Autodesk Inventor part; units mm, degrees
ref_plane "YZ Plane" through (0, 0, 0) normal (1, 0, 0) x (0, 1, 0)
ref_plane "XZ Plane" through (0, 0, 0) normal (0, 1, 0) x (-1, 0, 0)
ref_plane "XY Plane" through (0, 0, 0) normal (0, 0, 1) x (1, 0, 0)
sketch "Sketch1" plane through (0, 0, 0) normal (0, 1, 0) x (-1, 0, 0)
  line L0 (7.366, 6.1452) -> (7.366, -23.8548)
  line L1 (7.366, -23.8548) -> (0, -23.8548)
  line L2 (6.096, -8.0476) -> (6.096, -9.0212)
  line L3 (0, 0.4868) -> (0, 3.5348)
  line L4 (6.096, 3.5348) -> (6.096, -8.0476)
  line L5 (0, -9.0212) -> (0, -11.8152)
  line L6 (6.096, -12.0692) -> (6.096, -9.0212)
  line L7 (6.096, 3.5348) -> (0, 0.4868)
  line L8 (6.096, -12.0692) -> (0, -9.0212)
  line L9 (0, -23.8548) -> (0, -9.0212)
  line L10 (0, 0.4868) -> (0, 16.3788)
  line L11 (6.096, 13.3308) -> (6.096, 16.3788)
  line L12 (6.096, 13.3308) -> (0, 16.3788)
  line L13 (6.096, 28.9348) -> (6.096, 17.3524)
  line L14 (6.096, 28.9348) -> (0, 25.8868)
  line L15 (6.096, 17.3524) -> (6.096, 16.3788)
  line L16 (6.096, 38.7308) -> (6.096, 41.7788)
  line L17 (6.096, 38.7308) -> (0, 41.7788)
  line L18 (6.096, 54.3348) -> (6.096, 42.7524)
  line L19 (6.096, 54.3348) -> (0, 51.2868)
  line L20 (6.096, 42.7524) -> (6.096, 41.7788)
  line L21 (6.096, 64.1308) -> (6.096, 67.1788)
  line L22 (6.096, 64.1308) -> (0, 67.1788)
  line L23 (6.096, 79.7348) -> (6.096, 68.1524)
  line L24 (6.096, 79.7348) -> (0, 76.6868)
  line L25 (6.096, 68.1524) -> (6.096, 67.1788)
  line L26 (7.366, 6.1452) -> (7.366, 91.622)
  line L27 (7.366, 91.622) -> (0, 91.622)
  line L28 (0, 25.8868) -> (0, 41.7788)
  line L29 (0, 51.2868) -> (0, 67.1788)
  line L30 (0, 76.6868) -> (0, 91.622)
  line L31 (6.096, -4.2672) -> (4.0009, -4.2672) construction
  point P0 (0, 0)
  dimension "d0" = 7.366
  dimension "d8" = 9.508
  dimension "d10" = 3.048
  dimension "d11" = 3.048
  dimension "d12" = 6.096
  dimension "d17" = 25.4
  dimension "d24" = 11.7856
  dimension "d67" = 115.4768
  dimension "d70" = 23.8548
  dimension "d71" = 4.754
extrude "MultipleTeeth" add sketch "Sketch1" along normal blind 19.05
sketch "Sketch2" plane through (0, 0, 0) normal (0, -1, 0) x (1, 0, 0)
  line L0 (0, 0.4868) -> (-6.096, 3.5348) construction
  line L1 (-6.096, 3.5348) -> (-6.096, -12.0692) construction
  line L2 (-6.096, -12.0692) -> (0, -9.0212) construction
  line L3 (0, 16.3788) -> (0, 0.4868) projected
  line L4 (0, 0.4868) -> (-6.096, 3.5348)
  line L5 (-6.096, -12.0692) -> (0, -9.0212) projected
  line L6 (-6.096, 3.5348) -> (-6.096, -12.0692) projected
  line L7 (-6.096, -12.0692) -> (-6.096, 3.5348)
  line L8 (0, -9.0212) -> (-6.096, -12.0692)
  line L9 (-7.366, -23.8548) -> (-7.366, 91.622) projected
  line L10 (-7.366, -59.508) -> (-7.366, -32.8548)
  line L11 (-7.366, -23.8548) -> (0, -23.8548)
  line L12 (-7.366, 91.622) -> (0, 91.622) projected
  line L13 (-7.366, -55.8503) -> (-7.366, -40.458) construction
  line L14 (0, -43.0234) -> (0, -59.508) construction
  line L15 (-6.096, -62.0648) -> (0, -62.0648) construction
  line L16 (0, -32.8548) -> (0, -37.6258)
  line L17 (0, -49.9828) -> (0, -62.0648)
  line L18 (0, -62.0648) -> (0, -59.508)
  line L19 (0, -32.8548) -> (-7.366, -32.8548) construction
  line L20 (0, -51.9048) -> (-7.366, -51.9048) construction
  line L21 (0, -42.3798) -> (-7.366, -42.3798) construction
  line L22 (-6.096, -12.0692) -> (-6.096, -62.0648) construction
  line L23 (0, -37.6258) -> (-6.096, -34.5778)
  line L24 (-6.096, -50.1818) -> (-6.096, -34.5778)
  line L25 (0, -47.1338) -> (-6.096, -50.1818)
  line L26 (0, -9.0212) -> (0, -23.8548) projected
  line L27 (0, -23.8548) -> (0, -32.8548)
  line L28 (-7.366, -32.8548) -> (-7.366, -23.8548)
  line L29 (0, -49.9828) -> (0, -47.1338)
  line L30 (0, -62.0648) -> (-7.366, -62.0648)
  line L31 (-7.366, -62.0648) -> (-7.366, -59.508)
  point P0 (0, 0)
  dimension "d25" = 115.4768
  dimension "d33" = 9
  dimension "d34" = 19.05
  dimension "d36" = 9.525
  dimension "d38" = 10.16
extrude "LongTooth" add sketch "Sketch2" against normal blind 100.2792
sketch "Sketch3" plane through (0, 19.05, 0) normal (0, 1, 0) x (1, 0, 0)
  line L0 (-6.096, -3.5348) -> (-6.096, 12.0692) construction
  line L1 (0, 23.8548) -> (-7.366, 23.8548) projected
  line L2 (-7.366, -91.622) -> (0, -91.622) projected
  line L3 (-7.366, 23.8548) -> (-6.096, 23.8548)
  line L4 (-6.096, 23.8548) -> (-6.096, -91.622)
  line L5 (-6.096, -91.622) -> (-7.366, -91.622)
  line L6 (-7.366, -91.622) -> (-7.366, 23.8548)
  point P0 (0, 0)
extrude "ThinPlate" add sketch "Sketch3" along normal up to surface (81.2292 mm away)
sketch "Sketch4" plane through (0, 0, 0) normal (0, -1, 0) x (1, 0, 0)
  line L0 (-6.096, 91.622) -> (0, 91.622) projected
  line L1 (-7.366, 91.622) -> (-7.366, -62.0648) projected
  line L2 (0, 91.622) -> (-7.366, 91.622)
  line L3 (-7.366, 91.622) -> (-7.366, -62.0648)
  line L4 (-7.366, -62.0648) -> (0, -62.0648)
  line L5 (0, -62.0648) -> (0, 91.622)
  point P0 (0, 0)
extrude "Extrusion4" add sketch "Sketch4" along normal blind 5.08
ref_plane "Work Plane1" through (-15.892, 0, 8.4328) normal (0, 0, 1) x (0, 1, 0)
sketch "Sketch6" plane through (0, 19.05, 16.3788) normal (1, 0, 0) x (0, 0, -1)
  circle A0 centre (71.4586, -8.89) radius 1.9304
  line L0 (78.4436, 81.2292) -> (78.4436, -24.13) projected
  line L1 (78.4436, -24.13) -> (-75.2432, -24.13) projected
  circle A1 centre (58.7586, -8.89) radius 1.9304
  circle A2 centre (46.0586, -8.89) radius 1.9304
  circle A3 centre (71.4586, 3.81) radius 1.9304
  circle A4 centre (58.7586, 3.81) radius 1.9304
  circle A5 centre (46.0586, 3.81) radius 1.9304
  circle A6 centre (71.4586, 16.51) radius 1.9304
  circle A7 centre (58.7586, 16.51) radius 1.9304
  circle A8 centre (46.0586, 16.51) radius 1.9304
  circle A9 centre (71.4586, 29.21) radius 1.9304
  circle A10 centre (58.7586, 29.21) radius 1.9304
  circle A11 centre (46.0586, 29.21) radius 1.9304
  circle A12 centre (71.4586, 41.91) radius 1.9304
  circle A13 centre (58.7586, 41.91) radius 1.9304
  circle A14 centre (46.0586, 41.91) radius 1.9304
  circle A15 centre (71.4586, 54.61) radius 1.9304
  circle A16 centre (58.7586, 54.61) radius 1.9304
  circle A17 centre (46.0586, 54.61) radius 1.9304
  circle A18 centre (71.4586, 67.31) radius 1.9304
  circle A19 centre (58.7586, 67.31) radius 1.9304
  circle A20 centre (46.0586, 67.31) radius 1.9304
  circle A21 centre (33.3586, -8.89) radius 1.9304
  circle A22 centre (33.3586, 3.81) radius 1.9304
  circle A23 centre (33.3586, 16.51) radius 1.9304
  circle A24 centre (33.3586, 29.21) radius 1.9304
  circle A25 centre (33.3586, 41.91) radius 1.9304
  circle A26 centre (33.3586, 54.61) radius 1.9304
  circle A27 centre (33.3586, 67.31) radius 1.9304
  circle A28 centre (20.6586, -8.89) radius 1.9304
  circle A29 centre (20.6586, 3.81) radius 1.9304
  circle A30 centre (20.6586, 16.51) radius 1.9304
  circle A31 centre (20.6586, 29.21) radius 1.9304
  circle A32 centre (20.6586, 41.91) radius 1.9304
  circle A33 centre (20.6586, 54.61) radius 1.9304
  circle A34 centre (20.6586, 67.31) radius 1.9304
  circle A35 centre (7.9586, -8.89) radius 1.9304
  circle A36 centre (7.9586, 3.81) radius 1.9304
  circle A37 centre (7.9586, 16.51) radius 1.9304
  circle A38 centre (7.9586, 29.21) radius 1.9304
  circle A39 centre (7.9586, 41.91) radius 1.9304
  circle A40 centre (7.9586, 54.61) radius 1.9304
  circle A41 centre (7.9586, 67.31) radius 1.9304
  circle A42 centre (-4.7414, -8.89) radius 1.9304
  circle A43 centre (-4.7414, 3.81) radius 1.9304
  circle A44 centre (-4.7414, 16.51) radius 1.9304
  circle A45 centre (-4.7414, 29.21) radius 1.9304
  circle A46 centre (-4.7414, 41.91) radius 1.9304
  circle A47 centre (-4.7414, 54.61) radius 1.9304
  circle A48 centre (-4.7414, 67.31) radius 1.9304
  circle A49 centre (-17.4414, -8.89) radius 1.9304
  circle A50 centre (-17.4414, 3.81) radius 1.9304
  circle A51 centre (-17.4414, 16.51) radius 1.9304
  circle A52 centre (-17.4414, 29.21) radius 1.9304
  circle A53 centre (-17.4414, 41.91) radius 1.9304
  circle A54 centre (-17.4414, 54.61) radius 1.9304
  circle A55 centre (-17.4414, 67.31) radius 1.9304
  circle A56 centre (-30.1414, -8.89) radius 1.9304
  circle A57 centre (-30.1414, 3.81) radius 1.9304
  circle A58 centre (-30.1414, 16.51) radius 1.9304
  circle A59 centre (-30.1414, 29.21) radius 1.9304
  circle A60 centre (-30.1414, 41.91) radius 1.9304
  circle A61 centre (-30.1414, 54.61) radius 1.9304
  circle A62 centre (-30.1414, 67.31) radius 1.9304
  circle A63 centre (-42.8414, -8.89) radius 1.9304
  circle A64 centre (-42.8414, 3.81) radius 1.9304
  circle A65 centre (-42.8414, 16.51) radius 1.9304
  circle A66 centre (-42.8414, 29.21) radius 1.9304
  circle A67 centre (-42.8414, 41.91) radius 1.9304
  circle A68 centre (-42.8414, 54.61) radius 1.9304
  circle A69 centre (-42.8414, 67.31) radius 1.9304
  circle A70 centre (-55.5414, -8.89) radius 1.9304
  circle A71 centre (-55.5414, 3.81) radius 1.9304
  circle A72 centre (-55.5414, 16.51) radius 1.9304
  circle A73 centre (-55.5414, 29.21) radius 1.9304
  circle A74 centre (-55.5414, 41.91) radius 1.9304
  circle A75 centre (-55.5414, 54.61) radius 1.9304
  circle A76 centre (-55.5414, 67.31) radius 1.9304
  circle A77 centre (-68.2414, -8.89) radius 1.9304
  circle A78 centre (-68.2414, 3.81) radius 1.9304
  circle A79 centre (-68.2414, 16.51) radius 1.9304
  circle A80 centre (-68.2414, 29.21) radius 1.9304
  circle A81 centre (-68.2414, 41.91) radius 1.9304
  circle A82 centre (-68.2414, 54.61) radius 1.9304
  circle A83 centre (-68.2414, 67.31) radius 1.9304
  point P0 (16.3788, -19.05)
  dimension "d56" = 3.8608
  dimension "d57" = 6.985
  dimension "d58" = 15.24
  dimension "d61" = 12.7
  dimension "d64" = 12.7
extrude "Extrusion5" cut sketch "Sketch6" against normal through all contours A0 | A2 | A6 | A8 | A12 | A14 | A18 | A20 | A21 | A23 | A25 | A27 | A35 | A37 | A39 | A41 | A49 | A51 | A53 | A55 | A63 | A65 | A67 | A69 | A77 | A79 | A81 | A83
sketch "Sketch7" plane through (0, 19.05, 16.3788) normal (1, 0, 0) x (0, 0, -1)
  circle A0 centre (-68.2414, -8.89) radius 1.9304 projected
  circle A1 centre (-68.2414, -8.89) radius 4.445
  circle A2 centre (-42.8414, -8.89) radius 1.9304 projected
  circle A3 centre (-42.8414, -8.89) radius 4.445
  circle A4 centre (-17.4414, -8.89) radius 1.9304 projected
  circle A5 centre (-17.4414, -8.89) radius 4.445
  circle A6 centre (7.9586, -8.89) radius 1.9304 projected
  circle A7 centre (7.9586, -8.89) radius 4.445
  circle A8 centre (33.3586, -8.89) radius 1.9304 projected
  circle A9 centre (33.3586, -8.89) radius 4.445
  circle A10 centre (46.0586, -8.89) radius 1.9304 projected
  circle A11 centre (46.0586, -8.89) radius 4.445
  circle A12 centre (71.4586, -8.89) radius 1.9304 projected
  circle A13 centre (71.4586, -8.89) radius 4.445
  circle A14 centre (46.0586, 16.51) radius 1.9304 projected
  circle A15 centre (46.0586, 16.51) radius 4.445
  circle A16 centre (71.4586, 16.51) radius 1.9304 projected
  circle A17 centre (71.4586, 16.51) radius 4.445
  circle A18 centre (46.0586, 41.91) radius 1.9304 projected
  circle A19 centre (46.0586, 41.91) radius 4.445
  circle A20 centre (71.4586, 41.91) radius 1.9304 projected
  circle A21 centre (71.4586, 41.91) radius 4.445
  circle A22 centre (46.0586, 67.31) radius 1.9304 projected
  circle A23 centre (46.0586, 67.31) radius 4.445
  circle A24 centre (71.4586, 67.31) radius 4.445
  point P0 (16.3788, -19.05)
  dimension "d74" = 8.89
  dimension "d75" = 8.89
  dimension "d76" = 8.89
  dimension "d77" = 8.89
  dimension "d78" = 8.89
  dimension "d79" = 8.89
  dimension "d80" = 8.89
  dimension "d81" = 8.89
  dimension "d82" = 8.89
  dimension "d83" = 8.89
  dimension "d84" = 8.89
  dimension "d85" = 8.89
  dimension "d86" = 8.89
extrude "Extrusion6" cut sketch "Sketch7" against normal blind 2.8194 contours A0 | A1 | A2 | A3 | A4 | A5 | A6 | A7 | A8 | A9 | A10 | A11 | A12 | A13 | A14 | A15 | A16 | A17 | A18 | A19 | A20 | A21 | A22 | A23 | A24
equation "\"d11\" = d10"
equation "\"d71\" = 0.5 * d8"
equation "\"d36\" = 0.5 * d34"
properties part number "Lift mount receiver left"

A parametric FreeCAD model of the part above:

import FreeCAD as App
import Part
import Sketcher
Q = App.Units.Quantity


def add_polygon(sketch, points):
    """Adds a closed chain of lines whose ends are joined by coincident constraints."""
    first, n = sketch.GeometryCount, len(points)
    for a, b in zip(points, points[1:] + points[:1]):
        sketch.addGeometry(Part.LineSegment(App.Vector(*a, 0), App.Vector(*b, 0)), False)
    for i in range(n):
        sketch.addConstraint(Sketcher.Constraint("Coincident", first + i, 2, first + (i + 1) % n, 1))

doc = App.newDocument("Part")
body = doc.addObject("PartDesign::Body", "Body")

# Sketch on XZ plane
sketch1 = body.newObject("Sketcher::SketchObject", "Sketch")
sketch1.AttachmentSupport = (doc.getObject("XZ_Plane"), [""])
sketch1.MapMode = "FlatFace"
add_polygon(sketch1, [(-7, -24), (-7, 92), (0, 92), (0, 77), (-6, 80), (-6, 64), (0, 67), (0, 51), (-6, 54), (-6, 39), (0, 42), (0, 26), (-6, 29), (-6, 13), (0, 16), (0, 0), (-6, 4), (-6, -12), (0, -9), (0, -24)])  # lines 0-19
sketch1.addConstraint([
    Sketcher.Constraint("Vertical", 0),
    Sketcher.Constraint("Horizontal", 1),
    Sketcher.Constraint("Vertical", 2),
    Sketcher.Constraint("Vertical", 4),
    Sketcher.Constraint("Vertical", 6),
    Sketcher.Constraint("Vertical", 8),
    Sketcher.Constraint("Vertical", 10),
    Sketcher.Constraint("Vertical", 12),
    Sketcher.Constraint("Vertical", 14),
    Sketcher.Constraint("Vertical", 16),
    Sketcher.Constraint("Vertical", 18),
    Sketcher.Constraint("Horizontal", 19),
    Sketcher.Constraint("PointOnObject", 1, 2, -2),
    Sketcher.Constraint("PointOnObject", 5, 2, -2),
    Sketcher.Constraint("PointOnObject", 9, 2, -2),
    Sketcher.Constraint("PointOnObject", 13, 2, -2),
    Sketcher.Constraint("PointOnObject", 17, 2, -2),
    Sketcher.Constraint("Parallel", 3, 7),
    Sketcher.Constraint("Parallel", 5, 9),
    Sketcher.Constraint("Parallel", 7, 11),
    Sketcher.Constraint("Parallel", 9, 13),
    Sketcher.Constraint("Parallel", 11, 15),
    Sketcher.Constraint("Parallel", 13, 17),
    Sketcher.Constraint("Vertical", 4, 2, 7, 2),
    Sketcher.Constraint("Vertical", 8, 2, 11, 2),
    Sketcher.Constraint("Vertical", 12, 2, 15, 2),
    Sketcher.Constraint("Equal", 4, 8),
    Sketcher.Constraint("Equal", 6, 10),
    Sketcher.Constraint("Equal", 8, 12),
    Sketcher.Constraint("Equal", 10, 14),
    Sketcher.Constraint("Equal", 12, 16),
    Sketcher.Constraint("Equal", 3, 5),
    Sketcher.Constraint("DistanceY", 6, 2, 2, 2, Q("1 in")),
    Sketcher.Constraint("DistanceX", 1, 1, 1, 2, Q("0.29 in")),
    Sketcher.Constraint("DistanceX", 3, 2, -1, 1, Q("0.24 in")),
    Sketcher.Constraint("DistanceY", 2, 2, 3, 2, Q("0.12 in")),
    Sketcher.Constraint("DistanceY", 18, 2, 16, 2, Q("0.464 in")),
    Sketcher.Constraint("DistanceY", 0, 1, 0, 2, Q("115.4768 mm")),
    Sketcher.Constraint("DistanceY", 2, 2, 2, 1, Q("0.588 in")),
    Sketcher.Constraint("DistanceY", 18, 2, -1, 1, Q("23.8548 mm")),
])
pad1 = body.newObject("PartDesign::Pad", "Pad")
pad1.Profile = sketch1
pad1.Length = Q("0.75 in")
pad1.Reversed = True

# Sketch on XZ plane
sketch2 = body.newObject("Sketcher::SketchObject", "Sketch001")
sketch2.AttachmentSupport = (doc.getObject("XZ_Plane"), [""])
sketch2.MapMode = "FlatFace"
add_polygon(sketch2, [(-7, -24), (-7, -62), (0, -62), (0, -47), (-6, -50), (-6, -35), (0, -38), (0, -24)])  # lines 0-7
sketch2.addConstraint([
    Sketcher.Constraint("Vertical", 0),
    Sketcher.Constraint("Horizontal", 1),
    Sketcher.Constraint("Vertical", 2),
    Sketcher.Constraint("Vertical", 4),
    Sketcher.Constraint("Vertical", 6),
    Sketcher.Constraint("Horizontal", 7),
    Sketcher.Constraint("PointOnObject", 1, 2, -2),
    Sketcher.Constraint("PointOnObject", 5, 2, -2),
    Sketcher.Constraint("Equal", 3, 5),
    Sketcher.Constraint("DistanceX", 1, 1, 1, 2, Q("0.29 in")),
    Sketcher.Constraint("DistanceX", 3, 2, -1, 1, Q("0.24 in")),
    Sketcher.Constraint("DistanceY", 3, 2, 2, 2, Q("0.12 in")),
    Sketcher.Constraint("DistanceY", 0, 2, 0, 1, Q("38.21 mm")),
    Sketcher.Constraint("DistanceY", 2, 1, 2, 2, Q("14.931 mm")),
    Sketcher.Constraint("DistanceY", 4, 1, 4, 2, Q("15.604 mm")),
    Sketcher.Constraint("DistanceY", 0, 2, -1, 1, Q("2.4435 in")),
])
pad2 = body.newObject("PartDesign::Pad", "Pad001")
pad2.Profile = sketch2
pad2.Length = Q("3.948 in")
pad2.Reversed = True

# Sketch on XZ plane
sketch3 = body.newObject("Sketcher::SketchObject", "Sketch002")
sketch3.AttachmentSupport = (doc.getObject("XZ_Plane"), [""])
sketch3.MapMode = "FlatFace"
sketch3.AttachmentOffset = App.Placement(App.Vector(0, 0, -0.75 * 25.4), App.Rotation())
add_polygon(sketch3, [(-6.1, 91.6), (-6.1, -23.9), (-7.4, -23.9), (-7.4, 91.6)])  # lines 0-3
sketch3.addConstraint([
    Sketcher.Constraint("Vertical", 0),
    Sketcher.Constraint("Horizontal", 1),
    Sketcher.Constraint("Vertical", 2),
    Sketcher.Constraint("Horizontal", 3),
    Sketcher.Constraint("DistanceX", 1, 2, 1, 1, Q("0.05 in")),
    Sketcher.Constraint("DistanceX", 0, 2, -1, 1, Q("0.24 in")),
    Sketcher.Constraint("DistanceY", 0, 2, 0, 1, Q("115.4768 mm")),
    Sketcher.Constraint("DistanceY", 0, 2, -1, 1, Q("23.8548 mm")),
])
pad3 = body.newObject("PartDesign::Pad", "Pad002")
pad3.Profile = sketch3
pad3.Length = Q("3.198 in")
pad3.Reversed = True

# Sketch on XZ plane
sketch4 = body.newObject("Sketcher::SketchObject", "Sketch003")
sketch4.AttachmentSupport = (doc.getObject("XZ_Plane"), [""])
sketch4.MapMode = "FlatFace"
add_polygon(sketch4, [(0, 92), (-7, 92), (-7, -62), (0, -62)])  # lines 0-3
sketch4.addConstraint([
    Sketcher.Constraint("Horizontal", 0),
    Sketcher.Constraint("Vertical", 1),
    Sketcher.Constraint("Horizontal", 2),
    Sketcher.Constraint("Vertical", 3),
    Sketcher.Constraint("PointOnObject", 2, 2, -2),
    Sketcher.Constraint("DistanceX", 0, 2, 0, 1, Q("0.29 in")),
    Sketcher.Constraint("DistanceY", 1, 2, 1, 1, Q("153.6868 mm")),
    Sketcher.Constraint("DistanceY", 1, 2, -1, 1, Q("2.4435 in")),
])
pad4 = body.newObject("PartDesign::Pad", "Pad003")
pad4.Profile = sketch4
pad4.Length = Q("0.2 in")

# Sketch on YZ plane
sketch5 = body.newObject("Sketcher::SketchObject", "Sketch004")
sketch5.AttachmentSupport = (doc.getObject("YZ_Plane"), [""])
sketch5.MapMode = "FlatFace"
sketch5.addGeometry([
    Part.Circle(App.Vector(10.2, -55.1, 0), App.Vector(0, 0, 1), 1.9),  # 0
    Part.Circle(App.Vector(10.2, -29.7, 0), App.Vector(0, 0, 1), 1.9),  # 1
    Part.Circle(App.Vector(35.6, -55.1, 0), App.Vector(0, 0, 1), 1.9),  # 2
    Part.Circle(App.Vector(35.6, -29.7, 0), App.Vector(0, 0, 1), 1.9),  # 3
    Part.Circle(App.Vector(61, -55.1, 0), App.Vector(0, 0, 1), 1.9),  # 4
    Part.Circle(App.Vector(61, -29.7, 0), App.Vector(0, 0, 1), 1.9),  # 5
    Part.Circle(App.Vector(86.4, -55.1, 0), App.Vector(0, 0, 1), 1.9),  # 6
    Part.Circle(App.Vector(86.4, -29.7, 0), App.Vector(0, 0, 1), 1.9),  # 7
    Part.Circle(App.Vector(10.2, -17, 0), App.Vector(0, 0, 1), 1.9),  # 8
    Part.Circle(App.Vector(35.6, -17, 0), App.Vector(0, 0, 1), 1.9),  # 9
    Part.Circle(App.Vector(61, -17, 0), App.Vector(0, 0, 1), 1.9),  # 10
    Part.Circle(App.Vector(86.4, -17, 0), App.Vector(0, 0, 1), 1.9),  # 11
    Part.Circle(App.Vector(10.2, 8.4, 0), App.Vector(0, 0, 1), 1.9),  # 12
    Part.Circle(App.Vector(35.6, 8.4, 0), App.Vector(0, 0, 1), 1.9),  # 13
    Part.Circle(App.Vector(61, 8.4, 0), App.Vector(0, 0, 1), 1.9),  # 14
    Part.Circle(App.Vector(86.4, 8.4, 0), App.Vector(0, 0, 1), 1.9),  # 15
    Part.Circle(App.Vector(10.2, 33.8, 0), App.Vector(0, 0, 1), 1.9),  # 16
    Part.Circle(App.Vector(35.6, 33.8, 0), App.Vector(0, 0, 1), 1.9),  # 17
    Part.Circle(App.Vector(61, 33.8, 0), App.Vector(0, 0, 1), 1.9),  # 18
    Part.Circle(App.Vector(86.4, 33.8, 0), App.Vector(0, 0, 1), 1.9),  # 19
    Part.Circle(App.Vector(10.2, 59.2, 0), App.Vector(0, 0, 1), 1.9),  # 20
    Part.Circle(App.Vector(35.6, 59.2, 0), App.Vector(0, 0, 1), 1.9),  # 21
    Part.Circle(App.Vector(61, 59.2, 0), App.Vector(0, 0, 1), 1.9),  # 22
    Part.Circle(App.Vector(86.4, 59.2, 0), App.Vector(0, 0, 1), 1.9),  # 23
    Part.Circle(App.Vector(10.2, 84.6, 0), App.Vector(0, 0, 1), 1.9),  # 24
    Part.Circle(App.Vector(35.6, 84.6, 0), App.Vector(0, 0, 1), 1.9),  # 25
    Part.Circle(App.Vector(61, 84.6, 0), App.Vector(0, 0, 1), 1.9),  # 26
    Part.Circle(App.Vector(86.4, 84.6, 0), App.Vector(0, 0, 1), 1.9),  # 27
], False)
sketch5.addConstraint([
    Sketcher.Constraint("Equal", 0, 1),
    Sketcher.Constraint("Equal", 1, 2),
    Sketcher.Constraint("Equal", 2, 3),
    Sketcher.Constraint("Equal", 3, 4),
    Sketcher.Constraint("Equal", 4, 5),
    Sketcher.Constraint("Equal", 5, 6),
    Sketcher.Constraint("Equal", 6, 7),
    Sketcher.Constraint("Equal", 7, 8),
    Sketcher.Constraint("Equal", 8, 9),
    Sketcher.Constraint("Equal", 9, 10),
    Sketcher.Constraint("Equal", 10, 11),
    Sketcher.Constraint("Equal", 11, 12),
    Sketcher.Constraint("Equal", 12, 13),
    Sketcher.Constraint("Equal", 13, 14),
    Sketcher.Constraint("Equal", 14, 15),
    Sketcher.Constraint("Equal", 15, 16),
    Sketcher.Constraint("Equal", 16, 17),
    Sketcher.Constraint("Equal", 17, 18),
    Sketcher.Constraint("Equal", 18, 19),
    Sketcher.Constraint("Equal", 19, 20),
    Sketcher.Constraint("Equal", 20, 21),
    Sketcher.Constraint("Equal", 21, 22),
    Sketcher.Constraint("Equal", 22, 23),
    Sketcher.Constraint("Equal", 23, 24),
    Sketcher.Constraint("Equal", 24, 25),
    Sketcher.Constraint("Equal", 25, 26),
    Sketcher.Constraint("Equal", 26, 27),
    Sketcher.Constraint("Horizontal", 0, 3, 2, 3),
    Sketcher.Constraint("Horizontal", 1, 3, 3, 3),
    Sketcher.Constraint("Horizontal", 2, 3, 4, 3),
    Sketcher.Constraint("Horizontal", 3, 3, 5, 3),
    Sketcher.Constraint("Horizontal", 4, 3, 6, 3),
    Sketcher.Constraint("Horizontal", 5, 3, 7, 3),
    Sketcher.Constraint("Horizontal", 8, 3, 9, 3),
    Sketcher.Constraint("Horizontal", 9, 3, 10, 3),
    Sketcher.Constraint("Horizontal", 10, 3, 11, 3),
    Sketcher.Constraint("Horizontal", 12, 3, 13, 3),
    Sketcher.Constraint("Horizontal", 13, 3, 14, 3),
    Sketcher.Constraint("Horizontal", 14, 3, 15, 3),
    Sketcher.Constraint("Horizontal", 16, 3, 17, 3),
    Sketcher.Constraint("Horizontal", 17, 3, 18, 3),
    Sketcher.Constraint("Horizontal", 18, 3, 19, 3),
    Sketcher.Constraint("Horizontal", 20, 3, 21, 3),
    Sketcher.Constraint("Horizontal", 21, 3, 22, 3),
    Sketcher.Constraint("Horizontal", 22, 3, 23, 3),
    Sketcher.Constraint("Horizontal", 24, 3, 25, 3),
    Sketcher.Constraint("Horizontal", 25, 3, 26, 3),
    Sketcher.Constraint("Horizontal", 26, 3, 27, 3),
    Sketcher.Constraint("Vertical", 0, 3, 1, 3),
    Sketcher.Constraint("Vertical", 2, 3, 3, 3),
    Sketcher.Constraint("Vertical", 4, 3, 5, 3),
    Sketcher.Constraint("Vertical", 6, 3, 7, 3),
    Sketcher.Constraint("Vertical", 1, 3, 8, 3),
    Sketcher.Constraint("Vertical", 3, 3, 9, 3),
    Sketcher.Constraint("Vertical", 5, 3, 10, 3),
    Sketcher.Constraint("Vertical", 7, 3, 11, 3),
    Sketcher.Constraint("Vertical", 8, 3, 12, 3),
    Sketcher.Constraint("Vertical", 9, 3, 13, 3),
    Sketcher.Constraint("Vertical", 10, 3, 14, 3),
    Sketcher.Constraint("Vertical", 11, 3, 15, 3),
    Sketcher.Constraint("Vertical", 12, 3, 16, 3),
    Sketcher.Constraint("Vertical", 13, 3, 17, 3),
    Sketcher.Constraint("Vertical", 14, 3, 18, 3),
    Sketcher.Constraint("Vertical", 15, 3, 19, 3),
    Sketcher.Constraint("Vertical", 16, 3, 20, 3),
    Sketcher.Constraint("Vertical", 17, 3, 21, 3),
    Sketcher.Constraint("Vertical", 18, 3, 22, 3),
    Sketcher.Constraint("Vertical", 19, 3, 23, 3),
    Sketcher.Constraint("Vertical", 20, 3, 24, 3),
    Sketcher.Constraint("Vertical", 21, 3, 25, 3),
    Sketcher.Constraint("Vertical", 22, 3, 26, 3),
    Sketcher.Constraint("Vertical", 23, 3, 27, 3),
    Sketcher.Constraint("Diameter", 0, Q("0.152 in")),
    Sketcher.Constraint("DistanceY", 1, 3, 8, 3, Q("0.5 in")),
    Sketcher.Constraint("DistanceY", 0, 3, 1, 3, Q("1 in")),
    Sketcher.Constraint("DistanceX", 0, 3, 2, 3, Q("1 in")),
    Sketcher.Constraint("DistanceX", 2, 3, 4, 3, Q("1 in")),
    Sketcher.Constraint("DistanceX", 4, 3, 6, 3, Q("1 in")),
    Sketcher.Constraint("DistanceY", 8, 3, 12, 3, Q("1 in")),
    Sketcher.Constraint("DistanceY", 12, 3, 16, 3, Q("1 in")),
    Sketcher.Constraint("DistanceY", 16, 3, 20, 3, Q("1 in")),
    Sketcher.Constraint("DistanceY", 20, 3, 24, 3, Q("1 in")),
    Sketcher.Constraint("DistanceX", -1, 1, 0, 3, Q("0.4 in")),
    Sketcher.Constraint("DistanceY", 0, 3, -1, 1, Q("2.1685 in")),
])
pocket1 = body.newObject("PartDesign::Pocket", "Pocket")
pocket1.Profile = sketch5
pocket1.Type = "ThroughAll"

# Sketch on YZ plane
sketch6 = body.newObject("Sketcher::SketchObject", "Sketch005")
sketch6.AttachmentSupport = (doc.getObject("YZ_Plane"), [""])
sketch6.MapMode = "FlatFace"
sketch6.addGeometry([
    Part.Circle(App.Vector(10.2, 84.6, 0), App.Vector(0, 0, 1), 4.4),  # 0
    Part.Circle(App.Vector(10.2, 59.2, 0), App.Vector(0, 0, 1), 4.4),  # 1
    Part.Circle(App.Vector(10.2, 33.8, 0), App.Vector(0, 0, 1), 4.4),  # 2
    Part.Circle(App.Vector(10.2, 8.4, 0), App.Vector(0, 0, 1), 4.4),  # 3
    Part.Circle(App.Vector(10.2, -17, 0), App.Vector(0, 0, 1), 4.4),  # 4
    Part.Circle(App.Vector(10.2, -29.7, 0), App.Vector(0, 0, 1), 4.4),  # 5
    Part.Circle(App.Vector(10.2, -55.1, 0), App.Vector(0, 0, 1), 4.4),  # 6
    Part.Circle(App.Vector(35.6, -29.7, 0), App.Vector(0, 0, 1), 4.4),  # 7
    Part.Circle(App.Vector(35.6, -55.1, 0), App.Vector(0, 0, 1), 4.4),  # 8
    Part.Circle(App.Vector(61, -29.7, 0), App.Vector(0, 0, 1), 4.4),  # 9
    Part.Circle(App.Vector(61, -55.1, 0), App.Vector(0, 0, 1), 4.4),  # 10
    Part.Circle(App.Vector(86.4, -29.7, 0), App.Vector(0, 0, 1), 4.4),  # 11
    Part.Circle(App.Vector(86.4, -55.1, 0), App.Vector(0, 0, 1), 4.4),  # 12
], False)
sketch6.addConstraint([
    Sketcher.Constraint("Equal", 0, 1),
    Sketcher.Constraint("Equal", 1, 2),
    Sketcher.Constraint("Equal", 2, 3),
    Sketcher.Constraint("Equal", 3, 4),
    Sketcher.Constraint("Equal", 4, 5),
    Sketcher.Constraint("Equal", 5, 6),
    Sketcher.Constraint("Equal", 6, 7),
    Sketcher.Constraint("Equal", 7, 8),
    Sketcher.Constraint("Equal", 8, 9),
    Sketcher.Constraint("Equal", 9, 10),
    Sketcher.Constraint("Equal", 10, 11),
    Sketcher.Constraint("Equal", 11, 12),
    Sketcher.Constraint("Horizontal", 5, 3, 7, 3),
    Sketcher.Constraint("Horizontal", 6, 3, 8, 3),
    Sketcher.Constraint("Horizontal", 7, 3, 9, 3),
    Sketcher.Constraint("Horizontal", 8, 3, 10, 3),
    Sketcher.Constraint("Horizontal", 9, 3, 11, 3),
    Sketcher.Constraint("Horizontal", 10, 3, 12, 3),
    Sketcher.Constraint("Vertical", 0, 3, 1, 3),
    Sketcher.Constraint("Vertical", 1, 3, 2, 3),
    Sketcher.Constraint("Vertical", 2, 3, 3, 3),
    Sketcher.Constraint("Vertical", 3, 3, 4, 3),
    Sketcher.Constraint("Vertical", 4, 3, 5, 3),
    Sketcher.Constraint("Vertical", 5, 3, 6, 3),
    Sketcher.Constraint("Vertical", 7, 3, 8, 3),
    Sketcher.Constraint("Vertical", 9, 3, 10, 3),
    Sketcher.Constraint("Vertical", 11, 3, 12, 3),
    Sketcher.Constraint("Diameter", 0, Q("0.35 in")),
    Sketcher.Constraint("DistanceY", 1, 3, 0, 3, Q("1 in")),
    Sketcher.Constraint("DistanceY", 2, 3, 1, 3, Q("1 in")),
    Sketcher.Constraint("DistanceY", 3, 3, 2, 3, Q("1 in")),
    Sketcher.Constraint("DistanceY", 4, 3, 3, 3, Q("1 in")),
    Sketcher.Constraint("DistanceY", 6, 3, 5, 3, Q("1 in")),
    Sketcher.Constraint("DistanceX", 5, 3, 7, 3, Q("1 in")),
    Sketcher.Constraint("DistanceX", 7, 3, 9, 3, Q("1 in")),
    Sketcher.Constraint("DistanceX", 9, 3, 11, 3, Q("1 in")),
    Sketcher.Constraint("DistanceX", -1, 1, 0, 3, Q("0.4 in")),
    Sketcher.Constraint("DistanceY", 5, 3, 4, 3, Q("0.5 in")),
    Sketcher.Constraint("DistanceY", -1, 1, 0, 3, Q("3.3315 in")),
])
pocket2 = body.newObject("PartDesign::Pocket", "Pocket001")
pocket2.Profile = sketch6
pocket2.Length = Q("0.111 in")

doc.recompute()
